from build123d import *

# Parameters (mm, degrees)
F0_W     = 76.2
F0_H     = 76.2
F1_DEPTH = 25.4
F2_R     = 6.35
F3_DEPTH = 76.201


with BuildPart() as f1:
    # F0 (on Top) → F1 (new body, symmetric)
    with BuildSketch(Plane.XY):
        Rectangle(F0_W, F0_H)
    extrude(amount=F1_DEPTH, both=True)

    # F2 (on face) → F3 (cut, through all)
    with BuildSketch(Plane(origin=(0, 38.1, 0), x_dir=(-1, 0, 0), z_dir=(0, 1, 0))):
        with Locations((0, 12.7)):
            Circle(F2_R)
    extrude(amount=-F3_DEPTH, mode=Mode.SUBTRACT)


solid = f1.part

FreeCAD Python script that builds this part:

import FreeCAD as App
import Part
import Sketcher
Q = App.Units.Quantity

doc = App.newDocument("Part")
body = doc.addObject("PartDesign::Body", "Body")

# Sketch on XY plane
sketch1 = doc.addObject("Sketcher::SketchObject", "Sketch")
body.addObject(sketch1)
sketch1.AttachmentSupport = (doc.XY_Plane, [""])
sketch1.MapMode = "FlatFace"
sketch1.addGeometry(Part.LineSegment(App.Vector(-38.1, 38.1, 0), App.Vector(-38.1, -38.1, 0)), False)
sketch1.addGeometry(Part.LineSegment(App.Vector(-38.1, -38.1, 0), App.Vector(38.1, -38.1, 0)), False)
sketch1.addGeometry(Part.LineSegment(App.Vector(38.1, -38.1, 0), App.Vector(38.1, 38.1, 0)), False)
sketch1.addGeometry(Part.LineSegment(App.Vector(38.1, 38.1, 0), App.Vector(-38.1, 38.1, 0)), False)
sketch1.addConstraint(Sketcher.Constraint("Coincident", 0, 2, 1, 1))
sketch1.addConstraint(Sketcher.Constraint("Coincident", 1, 2, 2, 1))
sketch1.addConstraint(Sketcher.Constraint("Coincident", 2, 2, 3, 1))
sketch1.addConstraint(Sketcher.Constraint("Coincident", 3, 2, 0, 1))
sketch1.addConstraint(Sketcher.Constraint("Vertical", 0))
sketch1.addConstraint(Sketcher.Constraint("Horizontal", 1))
sketch1.addConstraint(Sketcher.Constraint("Vertical", 2))
sketch1.addConstraint(Sketcher.Constraint("Horizontal", 3))
sketch1.addConstraint(Sketcher.Constraint("Symmetric", 0, 2, 2, 2, -1, 1))
sketch1.addConstraint(Sketcher.Constraint("Equal", 3, 0))
sketch1.addConstraint(Sketcher.Constraint("DistanceX", 1, 1, 1, 2, Q("3 in")))
pad1 = doc.addObject("PartDesign::Pad", "Pad")
body.addObject(pad1)
pad1.Profile = sketch1
pad1.Length = Q("2 in")
pad1.Midplane = True

# Sketch on XZ plane
sketch2 = doc.addObject("Sketcher::SketchObject", "Sketch001")
body.addObject(sketch2)
sketch2.AttachmentSupport = (doc.XZ_Plane, [""])
sketch2.MapMode = "FlatFace"
sketch2.AttachmentOffset = App.Placement(App.Vector(0, 0, -1.5 * 25.4), App.Rotation())
sketch2.addGeometry(Part.Circle(App.Vector(0, 12.7, 0), App.Vector(0, 0, 1), 6.35), False)
sketch2.addConstraint(Sketcher.Constraint("PointOnObject", 0, 3, -2))
sketch2.addConstraint(Sketcher.Constraint("Diameter", 0, Q("0.5 in")))
sketch2.addConstraint(Sketcher.Constraint("DistanceY", -1, 1, 0, 3, Q("0.5 in")))
pocket1 = doc.addObject("PartDesign::Pocket", "Pocket")
body.addObject(pocket1)
pocket1.Profile = sketch2
pocket1.Type = "ThroughAll"
pocket1.Reversed = True

doc.recompute()
